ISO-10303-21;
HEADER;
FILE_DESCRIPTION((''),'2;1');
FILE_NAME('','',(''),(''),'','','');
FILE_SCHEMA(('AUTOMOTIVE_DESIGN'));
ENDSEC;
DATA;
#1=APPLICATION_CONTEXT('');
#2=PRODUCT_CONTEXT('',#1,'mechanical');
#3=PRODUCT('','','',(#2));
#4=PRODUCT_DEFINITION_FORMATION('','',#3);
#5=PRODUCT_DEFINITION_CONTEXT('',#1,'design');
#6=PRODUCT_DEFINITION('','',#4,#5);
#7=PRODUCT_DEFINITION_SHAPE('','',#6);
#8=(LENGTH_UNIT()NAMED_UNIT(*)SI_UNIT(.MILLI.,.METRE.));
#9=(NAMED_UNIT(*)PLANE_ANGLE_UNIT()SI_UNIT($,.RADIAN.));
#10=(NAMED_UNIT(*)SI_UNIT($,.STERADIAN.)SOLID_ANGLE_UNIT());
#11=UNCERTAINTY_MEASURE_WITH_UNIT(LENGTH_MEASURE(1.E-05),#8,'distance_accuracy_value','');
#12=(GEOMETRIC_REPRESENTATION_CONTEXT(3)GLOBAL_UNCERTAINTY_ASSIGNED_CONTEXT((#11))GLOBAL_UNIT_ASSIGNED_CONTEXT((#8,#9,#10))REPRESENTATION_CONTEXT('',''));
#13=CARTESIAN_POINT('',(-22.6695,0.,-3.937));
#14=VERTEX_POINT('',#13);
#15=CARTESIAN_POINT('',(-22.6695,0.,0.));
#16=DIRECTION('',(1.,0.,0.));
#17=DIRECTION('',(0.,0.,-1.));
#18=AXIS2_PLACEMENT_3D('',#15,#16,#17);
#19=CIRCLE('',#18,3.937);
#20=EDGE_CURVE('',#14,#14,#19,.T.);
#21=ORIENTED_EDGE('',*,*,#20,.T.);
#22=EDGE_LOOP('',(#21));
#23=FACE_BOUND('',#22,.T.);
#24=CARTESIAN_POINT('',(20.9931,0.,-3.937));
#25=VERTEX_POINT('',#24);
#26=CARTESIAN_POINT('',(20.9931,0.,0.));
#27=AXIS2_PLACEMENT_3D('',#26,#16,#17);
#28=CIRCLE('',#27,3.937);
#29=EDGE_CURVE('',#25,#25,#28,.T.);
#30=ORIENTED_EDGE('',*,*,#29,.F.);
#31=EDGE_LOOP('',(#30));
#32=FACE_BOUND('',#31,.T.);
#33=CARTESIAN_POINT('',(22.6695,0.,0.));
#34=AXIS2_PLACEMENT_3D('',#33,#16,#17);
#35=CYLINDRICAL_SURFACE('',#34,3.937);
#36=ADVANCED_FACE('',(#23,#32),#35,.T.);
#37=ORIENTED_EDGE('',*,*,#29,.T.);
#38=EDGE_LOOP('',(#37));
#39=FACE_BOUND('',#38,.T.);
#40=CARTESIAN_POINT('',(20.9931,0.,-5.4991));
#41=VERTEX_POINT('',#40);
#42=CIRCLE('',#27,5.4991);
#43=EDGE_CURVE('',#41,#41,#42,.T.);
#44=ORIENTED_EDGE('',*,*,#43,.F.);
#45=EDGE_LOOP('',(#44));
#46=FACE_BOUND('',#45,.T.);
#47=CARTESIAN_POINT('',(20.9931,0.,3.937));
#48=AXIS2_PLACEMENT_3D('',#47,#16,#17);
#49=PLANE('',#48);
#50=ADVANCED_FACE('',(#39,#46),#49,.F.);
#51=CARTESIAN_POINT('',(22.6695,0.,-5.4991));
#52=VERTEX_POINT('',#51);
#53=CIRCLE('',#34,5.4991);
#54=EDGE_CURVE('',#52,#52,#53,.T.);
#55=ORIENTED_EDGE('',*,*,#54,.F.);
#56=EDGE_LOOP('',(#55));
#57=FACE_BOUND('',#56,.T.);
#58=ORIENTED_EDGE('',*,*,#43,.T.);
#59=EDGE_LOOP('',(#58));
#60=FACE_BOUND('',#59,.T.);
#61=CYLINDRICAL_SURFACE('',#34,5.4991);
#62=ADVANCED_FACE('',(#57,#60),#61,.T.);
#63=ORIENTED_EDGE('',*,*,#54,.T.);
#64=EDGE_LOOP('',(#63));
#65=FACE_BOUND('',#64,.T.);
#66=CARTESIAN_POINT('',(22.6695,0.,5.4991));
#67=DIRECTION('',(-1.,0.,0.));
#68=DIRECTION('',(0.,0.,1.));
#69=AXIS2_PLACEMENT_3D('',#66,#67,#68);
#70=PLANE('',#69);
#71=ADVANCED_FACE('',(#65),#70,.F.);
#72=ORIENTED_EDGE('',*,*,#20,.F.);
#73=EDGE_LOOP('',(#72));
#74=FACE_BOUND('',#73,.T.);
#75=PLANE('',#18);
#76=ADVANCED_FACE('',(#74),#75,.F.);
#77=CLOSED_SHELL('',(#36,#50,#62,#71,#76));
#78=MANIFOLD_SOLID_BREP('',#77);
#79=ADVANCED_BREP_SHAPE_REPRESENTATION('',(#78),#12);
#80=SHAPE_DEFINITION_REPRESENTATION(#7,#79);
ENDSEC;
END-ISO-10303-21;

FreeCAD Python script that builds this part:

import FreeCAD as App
import Part
import Sketcher

V = App.Vector
Q = App.Units.Quantity


def add_polygon(sketch, points):
    """Adds a closed chain of lines whose ends are joined by coincident constraints."""
    first, n = sketch.GeometryCount, len(points)
    for a, b in zip(points, points[1:] + points[:1]):
        sketch.addGeometry(Part.LineSegment(App.Vector(*a, 0), App.Vector(*b, 0)), False)
    for i in range(n):
        sketch.addConstraint(Sketcher.Constraint("Coincident", first + i, 2, first + (i + 1) % n, 1))

doc = App.newDocument("Part")
body = doc.addObject("PartDesign::Body", "Body")

# Sketch on XZ plane
sketch1 = body.newObject("Sketcher::SketchObject", "Sketch")
sketch1.AttachmentSupport = (doc.getObject("XZ_Plane"), [""])
sketch1.MapMode = "FlatFace"
add_polygon(sketch1, [(-22.6695, 3.937), (20.9931, 3.937), (20.9931, 5.4991), (22.6695, 5.4991), (22.6695, 0), (-22.6695, 0)])  # lines 0-5
sketch1.addConstraint([
    Sketcher.Constraint("Horizontal", 0),
    Sketcher.Constraint("Vertical", 1),
    Sketcher.Constraint("Horizontal", 2),
    Sketcher.Constraint("Vertical", 3),
    Sketcher.Constraint("Horizontal", 4),
    Sketcher.Constraint("Vertical", 5),
    Sketcher.Constraint("Symmetric", 3, 2, 4, 2, -1, 1),
    Sketcher.Constraint("DistanceX", 0, 1, 0, 2, Q("1.719 in")),
    Sketcher.Constraint("DistanceX", 2, 1, 2, 2, Q("0.066 in")),
    Sketcher.Constraint("DistanceY", 5, 1, 5, 2, Q("0.155 in")),
    Sketcher.Constraint("DistanceY", 1, 1, 1, 2, Q("0.0615 in")),
])
revolution = body.newObject("PartDesign::Revolution", "Revolution")
revolution.Profile = sketch1
revolution.ReferenceAxis = (sketch1, ["H_Axis"])
revolution.Angle = 360

doc.recompute()
